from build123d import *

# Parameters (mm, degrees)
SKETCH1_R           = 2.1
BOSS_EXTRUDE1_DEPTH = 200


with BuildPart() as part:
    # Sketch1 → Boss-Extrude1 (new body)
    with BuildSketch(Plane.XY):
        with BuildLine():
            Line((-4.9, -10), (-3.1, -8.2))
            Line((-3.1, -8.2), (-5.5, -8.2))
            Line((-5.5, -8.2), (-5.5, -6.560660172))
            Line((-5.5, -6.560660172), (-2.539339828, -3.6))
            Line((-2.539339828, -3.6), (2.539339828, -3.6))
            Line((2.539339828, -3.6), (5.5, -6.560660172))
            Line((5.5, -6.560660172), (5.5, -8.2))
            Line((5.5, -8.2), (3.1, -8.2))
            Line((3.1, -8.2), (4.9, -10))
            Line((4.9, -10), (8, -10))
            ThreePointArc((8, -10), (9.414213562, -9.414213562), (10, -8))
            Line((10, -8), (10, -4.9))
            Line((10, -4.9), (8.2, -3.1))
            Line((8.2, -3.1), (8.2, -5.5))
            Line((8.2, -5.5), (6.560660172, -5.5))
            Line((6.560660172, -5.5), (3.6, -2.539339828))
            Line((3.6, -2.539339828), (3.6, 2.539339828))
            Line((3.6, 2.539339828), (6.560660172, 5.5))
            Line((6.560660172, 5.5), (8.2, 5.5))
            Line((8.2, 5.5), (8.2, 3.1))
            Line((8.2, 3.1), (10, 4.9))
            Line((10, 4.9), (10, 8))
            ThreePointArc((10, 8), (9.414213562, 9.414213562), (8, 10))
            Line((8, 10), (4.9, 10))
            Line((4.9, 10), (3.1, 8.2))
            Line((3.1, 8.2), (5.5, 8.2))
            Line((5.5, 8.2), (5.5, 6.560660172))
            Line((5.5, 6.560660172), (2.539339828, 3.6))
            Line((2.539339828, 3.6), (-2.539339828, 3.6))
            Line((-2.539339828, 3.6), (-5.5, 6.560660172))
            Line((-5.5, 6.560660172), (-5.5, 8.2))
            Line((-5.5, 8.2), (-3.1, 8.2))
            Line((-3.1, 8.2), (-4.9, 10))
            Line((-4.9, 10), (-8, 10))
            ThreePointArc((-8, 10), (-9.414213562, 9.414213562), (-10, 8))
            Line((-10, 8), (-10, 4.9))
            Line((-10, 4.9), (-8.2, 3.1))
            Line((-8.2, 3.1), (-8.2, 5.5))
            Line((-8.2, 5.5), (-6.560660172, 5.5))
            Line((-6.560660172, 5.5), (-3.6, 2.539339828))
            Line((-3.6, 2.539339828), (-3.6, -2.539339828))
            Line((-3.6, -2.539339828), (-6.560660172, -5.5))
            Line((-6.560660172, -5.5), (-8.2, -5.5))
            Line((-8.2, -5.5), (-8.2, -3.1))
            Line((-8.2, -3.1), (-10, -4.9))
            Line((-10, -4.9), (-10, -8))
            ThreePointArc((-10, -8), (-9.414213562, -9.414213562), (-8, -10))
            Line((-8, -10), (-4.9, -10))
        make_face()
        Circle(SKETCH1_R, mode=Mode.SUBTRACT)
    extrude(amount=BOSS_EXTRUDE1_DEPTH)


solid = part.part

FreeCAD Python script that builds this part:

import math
import FreeCAD as App
import Part
import Sketcher
Q = App.Units.Quantity

doc = App.newDocument("Part")
body = doc.addObject("PartDesign::Body", "Body")

# Sketch on XY plane
sketch1 = body.newObject("Sketcher::SketchObject", "Sketch")
sketch1.AttachmentSupport = (doc.getObject("XY_Plane"), [""])
sketch1.MapMode = "FlatFace"
sketch1.addGeometry(Part.LineSegment(App.Vector(-4.9, -10, 0), App.Vector(-3.1, -8.2, 0)), False)
sketch1.addGeometry(Part.LineSegment(App.Vector(-3.1, -8.2, 0), App.Vector(-5.5, -8.2, 0)), False)
sketch1.addGeometry(Part.LineSegment(App.Vector(-5.5, -8.2, 0), App.Vector(-5.5, -6.6, 0)), False)
sketch1.addGeometry(Part.LineSegment(App.Vector(-5.5, -6.6, 0), App.Vector(-2.5, -3.6, 0)), False)
sketch1.addGeometry(Part.LineSegment(App.Vector(-2.5, -3.6, 0), App.Vector(2.5, -3.6, 0)), False)
sketch1.addGeometry(Part.LineSegment(App.Vector(2.5, -3.6, 0), App.Vector(5.5, -6.6, 0)), False)
sketch1.addGeometry(Part.LineSegment(App.Vector(5.5, -6.6, 0), App.Vector(5.5, -8.2, 0)), False)
sketch1.addGeometry(Part.LineSegment(App.Vector(5.5, -8.2, 0), App.Vector(3.1, -8.2, 0)), False)
sketch1.addGeometry(Part.LineSegment(App.Vector(3.1, -8.2, 0), App.Vector(4.9, -10, 0)), False)
sketch1.addGeometry(Part.LineSegment(App.Vector(4.9, -10, 0), App.Vector(8, -10, 0)), False)
sketch1.addGeometry(Part.ArcOfCircle(Part.Circle(App.Vector(8, -8, 0), App.Vector(0, 0, 1), 2), math.radians(-90), math.radians(0)), False)
sketch1.addGeometry(Part.LineSegment(App.Vector(10, -8, 0), App.Vector(10, -4.9, 0)), False)
sketch1.addGeometry(Part.LineSegment(App.Vector(10, -4.9, 0), App.Vector(8.2, -3.1, 0)), False)
sketch1.addGeometry(Part.LineSegment(App.Vector(8.2, -3.1, 0), App.Vector(8.2, -5.5, 0)), False)
sketch1.addGeometry(Part.LineSegment(App.Vector(8.2, -5.5, 0), App.Vector(6.6, -5.5, 0)), False)
sketch1.addGeometry(Part.LineSegment(App.Vector(6.6, -5.5, 0), App.Vector(3.6, -2.5, 0)), False)
sketch1.addGeometry(Part.LineSegment(App.Vector(3.6, -2.5, 0), App.Vector(3.6, 2.5, 0)), False)
sketch1.addGeometry(Part.LineSegment(App.Vector(3.6, 2.5, 0), App.Vector(6.6, 5.5, 0)), False)
sketch1.addGeometry(Part.LineSegment(App.Vector(6.6, 5.5, 0), App.Vector(8.2, 5.5, 0)), False)
sketch1.addGeometry(Part.LineSegment(App.Vector(8.2, 5.5, 0), App.Vector(8.2, 3.1, 0)), False)
sketch1.addGeometry(Part.LineSegment(App.Vector(8.2, 3.1, 0), App.Vector(10, 4.9, 0)), False)
sketch1.addGeometry(Part.LineSegment(App.Vector(10, 4.9, 0), App.Vector(10, 8, 0)), False)
sketch1.addGeometry(Part.ArcOfCircle(Part.Circle(App.Vector(8, 8, 0), App.Vector(0, 0, 1), 2), math.radians(0), math.radians(90)), False)
sketch1.addGeometry(Part.LineSegment(App.Vector(8, 10, 0), App.Vector(4.9, 10, 0)), False)
sketch1.addGeometry(Part.LineSegment(App.Vector(4.9, 10, 0), App.Vector(3.1, 8.2, 0)), False)
sketch1.addGeometry(Part.LineSegment(App.Vector(3.1, 8.2, 0), App.Vector(5.5, 8.2, 0)), False)
sketch1.addGeometry(Part.LineSegment(App.Vector(5.5, 8.2, 0), App.Vector(5.5, 6.6, 0)), False)
sketch1.addGeometry(Part.LineSegment(App.Vector(5.5, 6.6, 0), App.Vector(2.5, 3.6, 0)), False)
sketch1.addGeometry(Part.LineSegment(App.Vector(2.5, 3.6, 0), App.Vector(-2.5, 3.6, 0)), False)
sketch1.addGeometry(Part.LineSegment(App.Vector(-2.5, 3.6, 0), App.Vector(-5.5, 6.6, 0)), False)
sketch1.addGeometry(Part.LineSegment(App.Vector(-5.5, 6.6, 0), App.Vector(-5.5, 8.2, 0)), False)
sketch1.addGeometry(Part.LineSegment(App.Vector(-5.5, 8.2, 0), App.Vector(-3.1, 8.2, 0)), False)
sketch1.addGeometry(Part.LineSegment(App.Vector(-3.1, 8.2, 0), App.Vector(-4.9, 10, 0)), False)
sketch1.addGeometry(Part.LineSegment(App.Vector(-4.9, 10, 0), App.Vector(-8, 10, 0)), False)
sketch1.addGeometry(Part.ArcOfCircle(Part.Circle(App.Vector(-8, 8, 0), App.Vector(0, 0, 1), 2), math.radians(90), math.radians(180)), False)
sketch1.addGeometry(Part.LineSegment(App.Vector(-10, 8, 0), App.Vector(-10, 4.9, 0)), False)
sketch1.addGeometry(Part.LineSegment(App.Vector(-10, 4.9, 0), App.Vector(-8.2, 3.1, 0)), False)
sketch1.addGeometry(Part.LineSegment(App.Vector(-8.2, 3.1, 0), App.Vector(-8.2, 5.5, 0)), False)
sketch1.addGeometry(Part.LineSegment(App.Vector(-8.2, 5.5, 0), App.Vector(-6.6, 5.5, 0)), False)
sketch1.addGeometry(Part.LineSegment(App.Vector(-6.6, 5.5, 0), App.Vector(-3.6, 2.5, 0)), False)
sketch1.addGeometry(Part.LineSegment(App.Vector(-3.6, 2.5, 0), App.Vector(-3.6, -2.5, 0)), False)
sketch1.addGeometry(Part.LineSegment(App.Vector(-3.6, -2.5, 0), App.Vector(-6.6, -5.5, 0)), False)
sketch1.addGeometry(Part.LineSegment(App.Vector(-6.6, -5.5, 0), App.Vector(-8.2, -5.5, 0)), False)
sketch1.addGeometry(Part.LineSegment(App.Vector(-8.2, -5.5, 0), App.Vector(-8.2, -3.1, 0)), False)
sketch1.addGeometry(Part.LineSegment(App.Vector(-8.2, -3.1, 0), App.Vector(-10, -4.9, 0)), False)
sketch1.addGeometry(Part.LineSegment(App.Vector(-10, -4.9, 0), App.Vector(-10, -8, 0)), False)
sketch1.addGeometry(Part.ArcOfCircle(Part.Circle(App.Vector(-8, -8, 0), App.Vector(0, 0, 1), 2), math.radians(-180), math.radians(-90)), False)
sketch1.addGeometry(Part.LineSegment(App.Vector(-8, -10, 0), App.Vector(-4.9, -10, 0)), False)
sketch1.addGeometry(Part.Circle(App.Vector(0, 0, 0), App.Vector(0, 0, 1), 2.1), False)
sketch1.addConstraint(Sketcher.Constraint("Coincident", 0, 2, 1, 1))
sketch1.addConstraint(Sketcher.Constraint("Coincident", 1, 2, 2, 1))
sketch1.addConstraint(Sketcher.Constraint("Coincident", 2, 2, 3, 1))
sketch1.addConstraint(Sketcher.Constraint("Coincident", 3, 2, 4, 1))
sketch1.addConstraint(Sketcher.Constraint("Coincident", 4, 2, 5, 1))
sketch1.addConstraint(Sketcher.Constraint("Coincident", 5, 2, 6, 1))
sketch1.addConstraint(Sketcher.Constraint("Coincident", 6, 2, 7, 1))
sketch1.addConstraint(Sketcher.Constraint("Coincident", 7, 2, 8, 1))
sketch1.addConstraint(Sketcher.Constraint("Coincident", 8, 2, 9, 1))
sketch1.addConstraint(Sketcher.Constraint("Tangent", 9, 2, 10, 1))
sketch1.addConstraint(Sketcher.Constraint("Tangent", 10, 2, 11, 1))
sketch1.addConstraint(Sketcher.Constraint("Coincident", 11, 2, 12, 1))
sketch1.addConstraint(Sketcher.Constraint("Coincident", 12, 2, 13, 1))
sketch1.addConstraint(Sketcher.Constraint("Coincident", 13, 2, 14, 1))
sketch1.addConstraint(Sketcher.Constraint("Coincident", 14, 2, 15, 1))
sketch1.addConstraint(Sketcher.Constraint("Coincident", 15, 2, 16, 1))
sketch1.addConstraint(Sketcher.Constraint("Coincident", 16, 2, 17, 1))
sketch1.addConstraint(Sketcher.Constraint("Coincident", 17, 2, 18, 1))
sketch1.addConstraint(Sketcher.Constraint("Coincident", 18, 2, 19, 1))
sketch1.addConstraint(Sketcher.Constraint("Coincident", 19, 2, 20, 1))
sketch1.addConstraint(Sketcher.Constraint("Coincident", 20, 2, 21, 1))
sketch1.addConstraint(Sketcher.Constraint("Tangent", 21, 2, 22, 1))
sketch1.addConstraint(Sketcher.Constraint("Tangent", 22, 2, 23, 1))
sketch1.addConstraint(Sketcher.Constraint("Coincident", 23, 2, 24, 1))
sketch1.addConstraint(Sketcher.Constraint("Coincident", 24, 2, 25, 1))
sketch1.addConstraint(Sketcher.Constraint("Coincident", 25, 2, 26, 1))
sketch1.addConstraint(Sketcher.Constraint("Coincident", 26, 2, 27, 1))
sketch1.addConstraint(Sketcher.Constraint("Coincident", 27, 2, 28, 1))
sketch1.addConstraint(Sketcher.Constraint("Coincident", 28, 2, 29, 1))
sketch1.addConstraint(Sketcher.Constraint("Coincident", 29, 2, 30, 1))
sketch1.addConstraint(Sketcher.Constraint("Coincident", 30, 2, 31, 1))
sketch1.addConstraint(Sketcher.Constraint("Coincident", 31, 2, 32, 1))
sketch1.addConstraint(Sketcher.Constraint("Coincident", 32, 2, 33, 1))
sketch1.addConstraint(Sketcher.Constraint("Tangent", 33, 2, 34, 1))
sketch1.addConstraint(Sketcher.Constraint("Tangent", 34, 2, 35, 1))
sketch1.addConstraint(Sketcher.Constraint("Coincident", 35, 2, 36, 1))
sketch1.addConstraint(Sketcher.Constraint("Coincident", 36, 2, 37, 1))
sketch1.addConstraint(Sketcher.Constraint("Coincident", 37, 2, 38, 1))
sketch1.addConstraint(Sketcher.Constraint("Coincident", 38, 2, 39, 1))
sketch1.addConstraint(Sketcher.Constraint("Coincident", 39, 2, 40, 1))
sketch1.addConstraint(Sketcher.Constraint("Coincident", 40, 2, 41, 1))
sketch1.addConstraint(Sketcher.Constraint("Coincident", 41, 2, 42, 1))
sketch1.addConstraint(Sketcher.Constraint("Coincident", 42, 2, 43, 1))
sketch1.addConstraint(Sketcher.Constraint("Coincident", 43, 2, 44, 1))
sketch1.addConstraint(Sketcher.Constraint("Coincident", 44, 2, 45, 1))
sketch1.addConstraint(Sketcher.Constraint("Tangent", 45, 2, 46, 1))
sketch1.addConstraint(Sketcher.Constraint("Tangent", 46, 2, 47, 1))
sketch1.addConstraint(Sketcher.Constraint("Coincident", 47, 2, 0, 1))
sketch1.addConstraint(Sketcher.Constraint("Horizontal", 1))
sketch1.addConstraint(Sketcher.Constraint("Vertical", 2))
sketch1.addConstraint(Sketcher.Constraint("Horizontal", 4))
sketch1.addConstraint(Sketcher.Constraint("Vertical", 6))
sketch1.addConstraint(Sketcher.Constraint("Horizontal", 7))
sketch1.addConstraint(Sketcher.Constraint("Horizontal", 9))
sketch1.addConstraint(Sketcher.Constraint("Vertical", 11))
sketch1.addConstraint(Sketcher.Constraint("Vertical", 13))
sketch1.addConstraint(Sketcher.Constraint("Horizontal", 14))
sketch1.addConstraint(Sketcher.Constraint("Vertical", 16))
sketch1.addConstraint(Sketcher.Constraint("Horizontal", 18))
sketch1.addConstraint(Sketcher.Constraint("Vertical", 19))
sketch1.addConstraint(Sketcher.Constraint("Vertical", 21))
sketch1.addConstraint(Sketcher.Constraint("Horizontal", 23))
sketch1.addConstraint(Sketcher.Constraint("Horizontal", 25))
sketch1.addConstraint(Sketcher.Constraint("Vertical", 26))
sketch1.addConstraint(Sketcher.Constraint("Horizontal", 28))
sketch1.addConstraint(Sketcher.Constraint("Vertical", 30))
sketch1.addConstraint(Sketcher.Constraint("Horizontal", 31))
sketch1.addConstraint(Sketcher.Constraint("Horizontal", 33))
sketch1.addConstraint(Sketcher.Constraint("Vertical", 35))
sketch1.addConstraint(Sketcher.Constraint("Vertical", 37))
sketch1.addConstraint(Sketcher.Constraint("Horizontal", 38))
sketch1.addConstraint(Sketcher.Constraint("Vertical", 40))
sketch1.addConstraint(Sketcher.Constraint("Horizontal", 42))
sketch1.addConstraint(Sketcher.Constraint("Vertical", 43))
sketch1.addConstraint(Sketcher.Constraint("Vertical", 45))
sketch1.addConstraint(Sketcher.Constraint("Horizontal", 47))
sketch1.addConstraint(Sketcher.Constraint("Coincident", 48, 3, -1, 1))
sketch1.addConstraint(Sketcher.Constraint("Equal", 10, 22))
sketch1.addConstraint(Sketcher.Constraint("Equal", 22, 34))
sketch1.addConstraint(Sketcher.Constraint("Equal", 34, 46))
sketch1.addConstraint(Sketcher.Constraint("Symmetric", 10, 3, 34, 3, -1, 1))
sketch1.addConstraint(Sketcher.Constraint("Symmetric", 22, 3, 46, 3, -1, 1))
sketch1.addConstraint(Sketcher.Constraint("Symmetric", 0, 2, 24, 2, -1, 1))
sketch1.addConstraint(Sketcher.Constraint("Symmetric", 2, 2, 26, 2, -1, 1))
sketch1.addConstraint(Sketcher.Constraint("Symmetric", 3, 2, 27, 2, -1, 1))
sketch1.addConstraint(Sketcher.Constraint("Symmetric", 5, 2, 29, 2, -1, 1))
sketch1.addConstraint(Sketcher.Constraint("Symmetric", 7, 2, 31, 2, -1, 1))
sketch1.addConstraint(Sketcher.Constraint("Symmetric", 12, 2, 36, 2, -1, 1))
sketch1.addConstraint(Sketcher.Constraint("Symmetric", 14, 2, 38, 2, -1, 1))
sketch1.addConstraint(Sketcher.Constraint("Symmetric", 15, 2, 39, 2, -1, 1))
sketch1.addConstraint(Sketcher.Constraint("Symmetric", 17, 2, 41, 2, -1, 1))
sketch1.addConstraint(Sketcher.Constraint("Symmetric", 19, 2, 43, 2, -1, 1))
sketch1.addConstraint(Sketcher.Constraint("Symmetric", 22, 3, 34, 3, -2))
sketch1.addConstraint(Sketcher.Constraint("Symmetric", 2, 2, 5, 2, -2))
sketch1.addConstraint(Sketcher.Constraint("Symmetric", 0, 2, 7, 2, -2))
sketch1.addConstraint(Sketcher.Constraint("Symmetric", 19, 2, 36, 2, -2))
sketch1.addConstraint(Sketcher.Constraint("Symmetric", 17, 2, 38, 2, -2))
sketch1.addConstraint(Sketcher.Constraint("Parallel", 0, 3))
sketch1.addConstraint(Sketcher.Constraint("Perpendicular", 3, 5))
sketch1.addConstraint(Sketcher.Constraint("Parallel", 5, 8))
sketch1.addConstraint(Sketcher.Constraint("Parallel", 8, 12))
sketch1.addConstraint(Sketcher.Constraint("Parallel", 12, 15))
sketch1.addConstraint(Sketcher.Constraint("Perpendicular", 15, 17))
sketch1.addConstraint(Sketcher.Constraint("Parallel", 17, 20))
sketch1.addConstraint(Sketcher.Constraint("Parallel", 20, 24))
sketch1.addConstraint(Sketcher.Constraint("Perpendicular", 27, 29))
sketch1.addConstraint(Sketcher.Constraint("Parallel", 29, 32))
sketch1.addConstraint(Sketcher.Constraint("Parallel", 32, 36))
sketch1.addConstraint(Sketcher.Constraint("Perpendicular", 39, 41))
sketch1.addConstraint(Sketcher.Constraint("Parallel", 41, 44))
sketch1.addConstraint(Sketcher.Constraint("Horizontal", 20, 2, 35, 2))
sketch1.addConstraint(Sketcher.Constraint("Equal", 42, 2))
sketch1.addConstraint(Sketcher.Constraint("Equal", 47, 11))
sketch1.addConstraint(Sketcher.Constraint("Equal", 31, 13))
sketch1.addConstraint(Sketcher.Constraint("Equal", 28, 16))
sketch1.addConstraint(Sketcher.Constraint("Equal", 8, 12))
sketch1.addConstraint(Sketcher.Constraint("Equal", 5, 15))
sketch1.addConstraint(Sketcher.Constraint("Radius", 10, Q("2 mm")))
sketch1.addConstraint(Sketcher.Constraint("Diameter", 48, Q("4.2 mm")))
sketch1.addConstraint(Sketcher.Constraint("DistanceX", 1, 2, 1, 1, Q("2.4 mm")))
sketch1.addConstraint(Sketcher.Constraint("DistanceX", 9, 1, 9, 2, Q("3.1 mm")))
sketch1.addConstraint(Sketcher.Constraint("DistanceX", -1, 1, 10, 3, Q("8 mm")))
sketch1.addConstraint(Sketcher.Constraint("DistanceX", 0, 2, -1, 1, Q("3.1 mm")))
sketch1.addConstraint(Sketcher.Constraint("DistanceY", 3, 2, -1, 1, Q("3.6 mm")))
sketch1.addConstraint(Sketcher.Constraint("DistanceX", 4, 1, 4, 2, Q("5.07868 mm")))
pad1 = body.newObject("PartDesign::Pad", "Pad")
pad1.Profile = sketch1
pad1.Length = 200

doc.recompute()
